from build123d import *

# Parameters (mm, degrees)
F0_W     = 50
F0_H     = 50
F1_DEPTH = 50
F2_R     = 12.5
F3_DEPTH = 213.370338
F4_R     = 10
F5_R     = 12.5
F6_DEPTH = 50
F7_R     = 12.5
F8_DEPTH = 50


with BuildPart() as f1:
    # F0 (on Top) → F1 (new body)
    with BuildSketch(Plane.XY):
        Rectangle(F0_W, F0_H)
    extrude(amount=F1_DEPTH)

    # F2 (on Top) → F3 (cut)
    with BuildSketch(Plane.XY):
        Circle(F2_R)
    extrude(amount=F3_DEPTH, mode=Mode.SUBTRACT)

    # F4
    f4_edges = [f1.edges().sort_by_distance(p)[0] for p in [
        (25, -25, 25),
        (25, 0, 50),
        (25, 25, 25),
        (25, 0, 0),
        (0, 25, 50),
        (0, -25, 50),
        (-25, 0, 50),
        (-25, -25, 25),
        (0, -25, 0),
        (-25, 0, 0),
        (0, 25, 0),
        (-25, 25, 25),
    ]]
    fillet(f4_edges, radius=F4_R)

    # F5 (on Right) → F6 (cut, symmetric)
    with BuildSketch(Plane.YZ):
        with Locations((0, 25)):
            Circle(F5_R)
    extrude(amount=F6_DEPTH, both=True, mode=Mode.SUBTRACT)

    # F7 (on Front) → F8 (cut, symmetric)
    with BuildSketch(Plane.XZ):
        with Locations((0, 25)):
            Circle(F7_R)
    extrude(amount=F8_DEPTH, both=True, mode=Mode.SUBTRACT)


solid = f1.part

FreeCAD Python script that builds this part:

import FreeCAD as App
import Part
import Sketcher


def edges_at(feature, points):
    """Names of the edges that pass closest to the given points."""
    edges = feature.Shape.Edges
    near = lambda p: min(range(len(edges)), key=lambda i: edges[i].distToShape(Part.Vertex(*p))[0])
    return sorted({f"Edge{near(p) + 1}" for p in points})

doc = App.newDocument("Part")
body = doc.addObject("PartDesign::Body", "Body")

# Sketch on XY plane
sketch1 = doc.addObject("Sketcher::SketchObject", "Sketch")
body.addObject(sketch1)
sketch1.AttachmentSupport = (doc.XY_Plane, [""])
sketch1.MapMode = "FlatFace"
sketch1.addGeometry([
    Part.LineSegment(App.Vector(-25, 25, 0), App.Vector(-25, -25, 0)),
    Part.LineSegment(App.Vector(-25, -25, 0), App.Vector(25, -25, 0)),
    Part.LineSegment(App.Vector(25, -25, 0), App.Vector(25, 25, 0)),
    Part.LineSegment(App.Vector(25, 25, 0), App.Vector(-25, 25, 0)),
], False)
sketch1.addConstraint([
    Sketcher.Constraint("Coincident", 0, 2, 1, 1),
    Sketcher.Constraint("Coincident", 1, 2, 2, 1),
    Sketcher.Constraint("Coincident", 2, 2, 3, 1),
    Sketcher.Constraint("Coincident", 3, 2, 0, 1),
    Sketcher.Constraint("Vertical", 0),
    Sketcher.Constraint("Horizontal", 1),
    Sketcher.Constraint("Vertical", 2),
    Sketcher.Constraint("Horizontal", 3),
    Sketcher.Constraint("Symmetric", 0, 2, 2, 2, -1, 1),
    Sketcher.Constraint("Equal", 3, 0),
    Sketcher.Constraint("DistanceX", 1, 1, 1, 2, 50.0),
])
pad1 = doc.addObject("PartDesign::Pad", "Pad")
body.addObject(pad1)
pad1.Profile = sketch1
pad1.Length = 50

# Sketch on XY plane
sketch2 = doc.addObject("Sketcher::SketchObject", "Sketch001")
body.addObject(sketch2)
sketch2.AttachmentSupport = (doc.XY_Plane, [""])
sketch2.MapMode = "FlatFace"
sketch2.addGeometry(Part.Circle(App.Vector(0, 0, 0), App.Vector(0, 0, 1), 12), False)
sketch2.addConstraint([
    Sketcher.Constraint("Coincident", 0, 3, -1, 1),
    Sketcher.Constraint("Diameter", 0, 25.0),
])
pocket1 = doc.addObject("PartDesign::Pocket", "Pocket")
body.addObject(pocket1)
pocket1.Profile = sketch2
pocket1.Length = 213.370338
pocket1.Reversed = True
doc.recompute()

fillet = doc.addObject("PartDesign::Fillet", "Fillet")
body.addObject(fillet)
fillet.Base = (pocket1, edges_at(pocket1, [
    (25, -25, 25),
    (25, 0, 50),
    (25, 25, 25),
    (25, 0, 0),
    (0, 25, 50),
    (0, -25, 50),
    (-25, 0, 50),
    (-25, -25, 25),
    (0, -25, 0),
    (-25, 0, 0),
    (0, 25, 0),
    (-25, 25, 25),
]))
fillet.Radius = 10

# Sketch on YZ plane
sketch3 = doc.addObject("Sketcher::SketchObject", "Sketch002")
body.addObject(sketch3)
sketch3.AttachmentSupport = (doc.YZ_Plane, [""])
sketch3.MapMode = "FlatFace"
sketch3.addGeometry(Part.Circle(App.Vector(0, 25, 0), App.Vector(0, 0, 1), 12), False)
sketch3.addConstraint([
    Sketcher.Constraint("PointOnObject", 0, 3, -2),
    Sketcher.Constraint("Diameter", 0, 25.0),
    Sketcher.Constraint("DistanceY", -1, 1, 0, 3, 25.0),
])
pocket2 = doc.addObject("PartDesign::Pocket", "Pocket001")
body.addObject(pocket2)
pocket2.Profile = sketch3
pocket2.Length = 100
pocket2.Midplane = True

# Sketch on XZ plane
sketch4 = doc.addObject("Sketcher::SketchObject", "Sketch003")
body.addObject(sketch4)
sketch4.AttachmentSupport = (doc.XZ_Plane, [""])
sketch4.MapMode = "FlatFace"
sketch4.addGeometry(Part.Circle(App.Vector(0, 25, 0), App.Vector(0, 0, 1), 12), False)
sketch4.addConstraint([
    Sketcher.Constraint("PointOnObject", 0, 3, -2),
    Sketcher.Constraint("Diameter", 0, 25.0),
    Sketcher.Constraint("DistanceY", -1, 1, 0, 3, 25.0),
])
pocket3 = doc.addObject("PartDesign::Pocket", "Pocket002")
body.addObject(pocket3)
pocket3.Profile = sketch4
pocket3.Length = 100
pocket3.Midplane = True

doc.recompute()
